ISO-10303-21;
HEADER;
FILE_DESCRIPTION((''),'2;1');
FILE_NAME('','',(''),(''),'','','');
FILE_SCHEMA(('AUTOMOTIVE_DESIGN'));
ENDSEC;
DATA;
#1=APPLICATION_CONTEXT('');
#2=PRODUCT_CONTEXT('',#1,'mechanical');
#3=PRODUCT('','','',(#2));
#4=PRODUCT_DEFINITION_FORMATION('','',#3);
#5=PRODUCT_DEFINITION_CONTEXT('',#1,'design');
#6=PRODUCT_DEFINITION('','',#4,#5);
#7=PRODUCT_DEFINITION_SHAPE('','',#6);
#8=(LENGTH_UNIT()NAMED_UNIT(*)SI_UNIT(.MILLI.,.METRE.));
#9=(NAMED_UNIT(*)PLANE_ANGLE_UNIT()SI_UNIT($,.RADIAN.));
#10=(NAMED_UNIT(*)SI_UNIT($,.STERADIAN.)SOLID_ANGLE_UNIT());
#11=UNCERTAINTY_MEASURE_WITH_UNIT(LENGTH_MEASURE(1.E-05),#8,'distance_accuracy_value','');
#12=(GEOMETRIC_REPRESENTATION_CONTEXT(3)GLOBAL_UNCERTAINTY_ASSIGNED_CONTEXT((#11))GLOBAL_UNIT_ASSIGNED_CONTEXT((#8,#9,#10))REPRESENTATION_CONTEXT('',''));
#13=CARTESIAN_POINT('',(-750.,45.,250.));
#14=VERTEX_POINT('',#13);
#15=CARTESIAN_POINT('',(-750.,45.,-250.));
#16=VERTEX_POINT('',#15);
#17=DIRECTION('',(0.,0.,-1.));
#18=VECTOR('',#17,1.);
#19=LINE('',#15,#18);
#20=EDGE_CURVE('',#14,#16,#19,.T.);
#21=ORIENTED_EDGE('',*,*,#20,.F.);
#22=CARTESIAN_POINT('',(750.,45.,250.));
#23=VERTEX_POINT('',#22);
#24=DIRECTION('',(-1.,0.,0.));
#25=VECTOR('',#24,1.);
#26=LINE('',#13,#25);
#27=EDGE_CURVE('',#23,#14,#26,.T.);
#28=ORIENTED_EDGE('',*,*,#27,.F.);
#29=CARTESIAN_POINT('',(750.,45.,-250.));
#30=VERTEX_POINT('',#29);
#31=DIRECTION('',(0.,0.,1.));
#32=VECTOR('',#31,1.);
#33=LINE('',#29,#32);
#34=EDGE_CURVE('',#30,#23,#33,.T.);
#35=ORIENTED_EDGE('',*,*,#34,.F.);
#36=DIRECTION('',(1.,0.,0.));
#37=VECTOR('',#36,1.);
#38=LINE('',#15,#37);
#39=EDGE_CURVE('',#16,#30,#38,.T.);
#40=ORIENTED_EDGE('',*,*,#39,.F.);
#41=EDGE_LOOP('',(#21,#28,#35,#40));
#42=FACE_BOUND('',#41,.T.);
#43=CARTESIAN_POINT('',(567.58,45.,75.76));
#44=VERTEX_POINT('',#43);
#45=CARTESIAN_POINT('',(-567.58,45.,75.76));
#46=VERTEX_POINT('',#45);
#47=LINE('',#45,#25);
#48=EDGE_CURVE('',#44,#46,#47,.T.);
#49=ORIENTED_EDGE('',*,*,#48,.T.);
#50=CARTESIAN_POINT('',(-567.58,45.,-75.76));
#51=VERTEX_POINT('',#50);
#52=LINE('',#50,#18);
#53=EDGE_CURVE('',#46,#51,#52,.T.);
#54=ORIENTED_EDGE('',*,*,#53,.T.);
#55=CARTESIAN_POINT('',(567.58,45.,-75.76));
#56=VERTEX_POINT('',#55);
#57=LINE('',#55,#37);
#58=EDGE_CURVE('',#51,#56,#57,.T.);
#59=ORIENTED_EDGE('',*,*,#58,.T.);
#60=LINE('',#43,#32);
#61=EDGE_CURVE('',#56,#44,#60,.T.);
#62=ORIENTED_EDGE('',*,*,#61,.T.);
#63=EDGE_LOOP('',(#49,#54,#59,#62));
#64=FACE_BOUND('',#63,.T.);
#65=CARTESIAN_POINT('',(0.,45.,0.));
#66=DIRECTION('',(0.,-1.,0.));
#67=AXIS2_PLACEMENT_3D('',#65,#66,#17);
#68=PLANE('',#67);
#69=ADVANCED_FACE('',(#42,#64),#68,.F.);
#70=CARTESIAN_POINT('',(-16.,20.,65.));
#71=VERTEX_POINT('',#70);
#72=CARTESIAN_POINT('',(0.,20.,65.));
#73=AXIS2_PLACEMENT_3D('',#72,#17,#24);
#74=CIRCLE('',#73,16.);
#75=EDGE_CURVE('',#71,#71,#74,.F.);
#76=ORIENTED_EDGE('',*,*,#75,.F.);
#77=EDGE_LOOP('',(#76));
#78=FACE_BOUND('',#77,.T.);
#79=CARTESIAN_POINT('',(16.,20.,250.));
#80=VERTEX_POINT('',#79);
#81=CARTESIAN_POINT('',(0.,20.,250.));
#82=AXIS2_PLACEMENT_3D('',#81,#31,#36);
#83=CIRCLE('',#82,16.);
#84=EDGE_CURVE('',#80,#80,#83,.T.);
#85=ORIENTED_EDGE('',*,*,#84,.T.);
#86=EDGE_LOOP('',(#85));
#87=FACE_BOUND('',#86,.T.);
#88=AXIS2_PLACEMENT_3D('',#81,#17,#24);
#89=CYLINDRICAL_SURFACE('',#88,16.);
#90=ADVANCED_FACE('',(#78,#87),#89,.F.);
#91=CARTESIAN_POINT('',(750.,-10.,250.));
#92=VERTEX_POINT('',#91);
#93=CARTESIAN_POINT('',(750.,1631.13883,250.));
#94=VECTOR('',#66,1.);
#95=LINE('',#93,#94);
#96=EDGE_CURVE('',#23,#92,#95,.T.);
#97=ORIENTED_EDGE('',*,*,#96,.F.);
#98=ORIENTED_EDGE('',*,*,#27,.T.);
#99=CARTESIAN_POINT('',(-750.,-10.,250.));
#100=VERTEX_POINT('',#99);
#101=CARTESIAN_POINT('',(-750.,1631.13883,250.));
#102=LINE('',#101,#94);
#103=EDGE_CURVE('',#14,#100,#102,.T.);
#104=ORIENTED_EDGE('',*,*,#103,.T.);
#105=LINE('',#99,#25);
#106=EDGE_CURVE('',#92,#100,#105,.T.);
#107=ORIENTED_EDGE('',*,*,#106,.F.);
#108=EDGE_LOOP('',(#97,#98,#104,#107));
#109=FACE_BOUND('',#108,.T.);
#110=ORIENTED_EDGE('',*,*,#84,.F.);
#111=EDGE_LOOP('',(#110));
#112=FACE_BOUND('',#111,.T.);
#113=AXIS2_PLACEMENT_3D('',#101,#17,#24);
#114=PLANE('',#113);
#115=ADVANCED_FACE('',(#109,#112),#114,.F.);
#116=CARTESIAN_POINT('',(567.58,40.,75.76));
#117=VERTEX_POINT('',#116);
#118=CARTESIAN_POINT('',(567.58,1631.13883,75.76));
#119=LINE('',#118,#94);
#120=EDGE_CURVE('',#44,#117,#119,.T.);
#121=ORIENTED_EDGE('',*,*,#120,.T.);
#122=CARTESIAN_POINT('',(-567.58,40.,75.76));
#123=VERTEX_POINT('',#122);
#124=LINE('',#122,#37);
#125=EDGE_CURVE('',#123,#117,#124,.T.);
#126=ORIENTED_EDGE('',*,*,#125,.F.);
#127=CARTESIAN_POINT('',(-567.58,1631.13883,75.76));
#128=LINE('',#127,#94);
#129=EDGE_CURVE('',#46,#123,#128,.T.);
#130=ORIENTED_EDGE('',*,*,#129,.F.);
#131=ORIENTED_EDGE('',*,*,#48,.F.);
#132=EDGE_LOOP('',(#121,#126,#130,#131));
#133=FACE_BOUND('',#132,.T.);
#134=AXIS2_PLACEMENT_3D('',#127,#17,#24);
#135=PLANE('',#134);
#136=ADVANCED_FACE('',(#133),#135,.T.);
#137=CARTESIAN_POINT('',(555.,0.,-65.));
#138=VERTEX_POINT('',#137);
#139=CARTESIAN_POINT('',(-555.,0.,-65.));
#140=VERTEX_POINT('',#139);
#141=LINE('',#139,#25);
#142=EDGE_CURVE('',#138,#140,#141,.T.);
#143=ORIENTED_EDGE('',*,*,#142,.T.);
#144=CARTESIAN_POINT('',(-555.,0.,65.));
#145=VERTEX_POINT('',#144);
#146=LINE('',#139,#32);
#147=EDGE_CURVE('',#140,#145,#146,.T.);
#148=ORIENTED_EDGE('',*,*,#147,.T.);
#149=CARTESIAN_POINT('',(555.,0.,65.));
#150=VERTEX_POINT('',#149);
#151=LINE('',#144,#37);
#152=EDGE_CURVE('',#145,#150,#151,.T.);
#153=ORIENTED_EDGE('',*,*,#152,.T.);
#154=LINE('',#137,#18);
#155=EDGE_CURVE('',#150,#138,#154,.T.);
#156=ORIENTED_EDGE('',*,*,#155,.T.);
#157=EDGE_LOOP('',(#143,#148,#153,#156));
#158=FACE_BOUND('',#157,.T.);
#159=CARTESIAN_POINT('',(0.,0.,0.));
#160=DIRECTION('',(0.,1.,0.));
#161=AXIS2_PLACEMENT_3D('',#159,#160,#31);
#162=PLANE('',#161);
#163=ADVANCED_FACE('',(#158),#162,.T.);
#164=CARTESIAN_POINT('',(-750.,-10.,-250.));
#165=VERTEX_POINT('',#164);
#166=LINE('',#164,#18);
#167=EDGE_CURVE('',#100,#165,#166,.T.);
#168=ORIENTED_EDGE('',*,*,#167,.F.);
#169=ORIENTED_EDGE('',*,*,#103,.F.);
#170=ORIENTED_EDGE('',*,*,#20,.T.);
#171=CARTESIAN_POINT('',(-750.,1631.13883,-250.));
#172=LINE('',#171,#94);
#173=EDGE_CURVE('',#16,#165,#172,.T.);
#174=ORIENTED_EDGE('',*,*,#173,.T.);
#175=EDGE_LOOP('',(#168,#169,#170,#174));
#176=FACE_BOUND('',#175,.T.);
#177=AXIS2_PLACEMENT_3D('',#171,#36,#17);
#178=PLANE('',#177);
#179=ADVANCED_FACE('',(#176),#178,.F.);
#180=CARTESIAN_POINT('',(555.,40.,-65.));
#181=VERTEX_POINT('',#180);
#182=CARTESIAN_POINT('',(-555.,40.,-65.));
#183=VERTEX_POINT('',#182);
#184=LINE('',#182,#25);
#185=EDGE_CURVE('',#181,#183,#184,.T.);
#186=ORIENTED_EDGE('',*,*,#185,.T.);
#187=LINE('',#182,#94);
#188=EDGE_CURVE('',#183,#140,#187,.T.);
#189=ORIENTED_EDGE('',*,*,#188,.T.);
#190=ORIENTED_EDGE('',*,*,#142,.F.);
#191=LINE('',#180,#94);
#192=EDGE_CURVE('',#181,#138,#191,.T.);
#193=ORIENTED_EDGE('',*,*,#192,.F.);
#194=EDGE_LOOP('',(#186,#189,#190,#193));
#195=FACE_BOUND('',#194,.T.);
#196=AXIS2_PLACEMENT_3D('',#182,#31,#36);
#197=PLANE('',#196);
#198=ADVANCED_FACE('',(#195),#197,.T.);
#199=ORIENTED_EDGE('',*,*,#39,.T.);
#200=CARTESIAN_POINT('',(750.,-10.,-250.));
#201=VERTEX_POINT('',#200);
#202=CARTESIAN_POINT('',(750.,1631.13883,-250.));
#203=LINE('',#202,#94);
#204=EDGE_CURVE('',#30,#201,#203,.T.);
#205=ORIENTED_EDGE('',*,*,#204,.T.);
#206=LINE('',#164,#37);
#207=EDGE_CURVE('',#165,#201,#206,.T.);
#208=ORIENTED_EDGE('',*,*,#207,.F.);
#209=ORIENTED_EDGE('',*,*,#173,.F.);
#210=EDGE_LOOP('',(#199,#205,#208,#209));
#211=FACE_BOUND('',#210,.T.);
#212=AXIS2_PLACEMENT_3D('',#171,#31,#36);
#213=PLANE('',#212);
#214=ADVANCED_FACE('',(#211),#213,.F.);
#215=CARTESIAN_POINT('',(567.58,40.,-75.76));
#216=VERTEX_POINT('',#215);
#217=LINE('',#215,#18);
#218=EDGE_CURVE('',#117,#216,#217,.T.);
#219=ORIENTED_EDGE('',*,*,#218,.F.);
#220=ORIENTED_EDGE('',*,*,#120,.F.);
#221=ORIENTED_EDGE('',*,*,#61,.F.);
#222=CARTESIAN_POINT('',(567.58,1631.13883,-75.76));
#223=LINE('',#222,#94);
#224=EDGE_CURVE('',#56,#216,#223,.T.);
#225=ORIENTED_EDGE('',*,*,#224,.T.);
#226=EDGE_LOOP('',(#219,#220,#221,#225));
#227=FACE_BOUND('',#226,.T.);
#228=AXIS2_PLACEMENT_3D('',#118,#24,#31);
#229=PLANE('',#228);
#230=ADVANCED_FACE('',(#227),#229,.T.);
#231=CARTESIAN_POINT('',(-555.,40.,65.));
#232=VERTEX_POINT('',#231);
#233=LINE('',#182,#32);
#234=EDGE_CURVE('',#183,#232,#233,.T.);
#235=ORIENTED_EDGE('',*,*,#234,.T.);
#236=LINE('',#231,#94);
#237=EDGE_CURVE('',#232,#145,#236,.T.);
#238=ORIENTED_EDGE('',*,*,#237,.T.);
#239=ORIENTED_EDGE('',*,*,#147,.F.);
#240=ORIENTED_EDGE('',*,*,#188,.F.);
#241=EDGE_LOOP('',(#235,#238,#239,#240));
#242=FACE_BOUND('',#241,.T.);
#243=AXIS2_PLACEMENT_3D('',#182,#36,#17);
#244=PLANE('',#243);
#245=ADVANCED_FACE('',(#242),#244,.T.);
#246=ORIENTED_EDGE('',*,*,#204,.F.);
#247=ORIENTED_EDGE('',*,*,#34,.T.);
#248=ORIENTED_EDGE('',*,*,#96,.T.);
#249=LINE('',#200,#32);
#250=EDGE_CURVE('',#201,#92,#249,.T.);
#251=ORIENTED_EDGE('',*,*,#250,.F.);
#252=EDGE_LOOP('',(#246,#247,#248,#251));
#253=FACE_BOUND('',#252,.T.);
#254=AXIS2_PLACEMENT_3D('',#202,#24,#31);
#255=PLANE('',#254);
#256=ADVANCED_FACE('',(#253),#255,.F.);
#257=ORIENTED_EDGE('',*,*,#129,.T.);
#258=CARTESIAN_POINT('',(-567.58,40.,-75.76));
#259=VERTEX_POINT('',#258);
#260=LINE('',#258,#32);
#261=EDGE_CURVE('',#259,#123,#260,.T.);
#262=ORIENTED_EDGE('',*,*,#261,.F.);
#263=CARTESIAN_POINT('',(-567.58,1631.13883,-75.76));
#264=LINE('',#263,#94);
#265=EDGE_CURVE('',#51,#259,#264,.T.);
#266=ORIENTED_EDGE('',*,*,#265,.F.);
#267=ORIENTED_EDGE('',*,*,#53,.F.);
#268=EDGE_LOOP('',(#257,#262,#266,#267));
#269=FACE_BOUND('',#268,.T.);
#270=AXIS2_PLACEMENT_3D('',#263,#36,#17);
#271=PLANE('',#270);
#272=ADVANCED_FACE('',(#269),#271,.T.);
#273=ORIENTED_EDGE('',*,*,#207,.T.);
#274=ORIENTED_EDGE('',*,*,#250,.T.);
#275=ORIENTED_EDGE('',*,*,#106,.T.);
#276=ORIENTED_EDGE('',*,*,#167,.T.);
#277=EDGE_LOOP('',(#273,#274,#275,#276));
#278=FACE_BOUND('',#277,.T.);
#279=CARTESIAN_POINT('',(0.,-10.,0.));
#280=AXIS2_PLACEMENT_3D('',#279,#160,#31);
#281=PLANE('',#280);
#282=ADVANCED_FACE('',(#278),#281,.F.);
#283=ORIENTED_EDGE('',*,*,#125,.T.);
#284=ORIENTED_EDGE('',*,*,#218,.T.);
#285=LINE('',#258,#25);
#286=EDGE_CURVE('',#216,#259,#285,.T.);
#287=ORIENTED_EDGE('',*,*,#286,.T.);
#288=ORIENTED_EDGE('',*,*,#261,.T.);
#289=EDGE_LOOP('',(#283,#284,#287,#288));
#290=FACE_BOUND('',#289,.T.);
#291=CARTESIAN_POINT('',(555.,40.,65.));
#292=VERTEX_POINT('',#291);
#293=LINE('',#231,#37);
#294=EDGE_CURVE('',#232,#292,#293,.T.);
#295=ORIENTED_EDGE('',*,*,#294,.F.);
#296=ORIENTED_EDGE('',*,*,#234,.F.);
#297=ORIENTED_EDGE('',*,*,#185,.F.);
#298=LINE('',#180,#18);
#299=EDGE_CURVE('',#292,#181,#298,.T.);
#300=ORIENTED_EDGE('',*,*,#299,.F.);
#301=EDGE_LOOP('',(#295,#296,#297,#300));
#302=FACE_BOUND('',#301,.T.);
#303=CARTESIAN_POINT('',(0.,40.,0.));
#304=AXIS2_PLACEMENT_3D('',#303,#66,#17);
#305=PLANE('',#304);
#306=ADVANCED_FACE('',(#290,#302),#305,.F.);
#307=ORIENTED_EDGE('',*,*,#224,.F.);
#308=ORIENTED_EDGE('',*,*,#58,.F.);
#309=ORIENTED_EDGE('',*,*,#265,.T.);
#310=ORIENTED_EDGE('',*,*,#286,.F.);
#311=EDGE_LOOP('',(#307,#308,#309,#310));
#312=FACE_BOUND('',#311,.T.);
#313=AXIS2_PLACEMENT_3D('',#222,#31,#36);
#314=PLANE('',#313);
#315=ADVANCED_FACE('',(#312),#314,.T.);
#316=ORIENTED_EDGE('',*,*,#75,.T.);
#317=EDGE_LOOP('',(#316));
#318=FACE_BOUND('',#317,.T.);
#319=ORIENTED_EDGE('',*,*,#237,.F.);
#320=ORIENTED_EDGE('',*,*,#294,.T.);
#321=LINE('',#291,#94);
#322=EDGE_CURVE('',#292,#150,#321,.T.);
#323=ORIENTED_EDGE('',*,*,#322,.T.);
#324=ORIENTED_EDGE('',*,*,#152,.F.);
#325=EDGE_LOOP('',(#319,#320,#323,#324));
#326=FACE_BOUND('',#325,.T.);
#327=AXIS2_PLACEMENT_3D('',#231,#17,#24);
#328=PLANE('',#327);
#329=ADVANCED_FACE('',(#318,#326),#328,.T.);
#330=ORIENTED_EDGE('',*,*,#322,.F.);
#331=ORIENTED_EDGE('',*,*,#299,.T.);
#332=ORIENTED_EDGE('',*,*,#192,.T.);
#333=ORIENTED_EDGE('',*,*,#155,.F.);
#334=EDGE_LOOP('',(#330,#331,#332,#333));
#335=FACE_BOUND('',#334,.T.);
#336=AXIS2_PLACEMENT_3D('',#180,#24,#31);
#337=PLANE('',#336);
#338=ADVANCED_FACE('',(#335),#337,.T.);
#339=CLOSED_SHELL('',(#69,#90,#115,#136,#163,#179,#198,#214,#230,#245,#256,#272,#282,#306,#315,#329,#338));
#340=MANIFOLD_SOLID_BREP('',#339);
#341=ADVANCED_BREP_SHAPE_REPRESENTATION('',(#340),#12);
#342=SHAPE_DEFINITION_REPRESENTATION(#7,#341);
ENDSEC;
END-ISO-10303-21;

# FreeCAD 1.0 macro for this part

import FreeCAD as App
import Part
import Sketcher
from FreeCAD import Vector
Q = App.Units.Quantity

doc = App.newDocument("Part")
body = doc.addObject("PartDesign::Body", "Body")

sketch1 = doc.addObject("Sketcher::SketchObject", "Sketch")
body.addObject(sketch1)
sketch1.AttachmentSupport = (doc.XZ_Plane, [""])
sketch1.MapMode = "FlatFace"
sketch1.addGeometry([
    Part.LineSegment(Vector(-568, -76, 0), Vector(-568, 76, 0)),
    Part.LineSegment(Vector(-568, 76, 0), Vector(568, 76, 0)),
    Part.LineSegment(Vector(568, 76, 0), Vector(568, -76, 0)),
    Part.LineSegment(Vector(568, -76, 0), Vector(-568, -76, 0)),
    Part.LineSegment(Vector(555, 65, 0), Vector(-555, 65, 0)),
    Part.LineSegment(Vector(-555, 65, 0), Vector(-555, -65, 0)),
    Part.LineSegment(Vector(-555, -65, 0), Vector(555, -65, 0)),
    Part.LineSegment(Vector(555, -65, 0), Vector(555, 65, 0)),
], False)
sketch1.addConstraint([
    Sketcher.Constraint("Coincident", 0, 2, 1, 1),
    Sketcher.Constraint("Coincident", 1, 2, 2, 1),
    Sketcher.Constraint("Coincident", 2, 2, 3, 1),
    Sketcher.Constraint("Coincident", 3, 2, 0, 1),
    Sketcher.Constraint("Coincident", 4, 2, 5, 1),
    Sketcher.Constraint("Coincident", 5, 2, 6, 1),
    Sketcher.Constraint("Coincident", 6, 2, 7, 1),
    Sketcher.Constraint("Coincident", 7, 2, 4, 1),
    Sketcher.Constraint("Vertical", 0),
    Sketcher.Constraint("Horizontal", 1),
    Sketcher.Constraint("Vertical", 2),
    Sketcher.Constraint("Horizontal", 3),
    Sketcher.Constraint("Horizontal", 4),
    Sketcher.Constraint("Vertical", 5),
    Sketcher.Constraint("Horizontal", 6),
    Sketcher.Constraint("Vertical", 7),
    Sketcher.Constraint("Symmetric", 0, 2, 2, 2, -1, 1),
    Sketcher.Constraint("Symmetric", 4, 2, 6, 2, -1, 1),
    Sketcher.Constraint("DistanceX", 4, 2, 4, 1, Q("1110 mm")),
    Sketcher.Constraint("DistanceY", 5, 2, 5, 1, Q("130 mm")),
    Sketcher.Constraint("DistanceX", 1, 1, 1, 2, Q("1135.16 mm")),
    Sketcher.Constraint("DistanceY", 0, 1, 0, 2, Q("151.52 mm")),
])
pad1 = doc.addObject("PartDesign::Pad", "Pad")
body.addObject(pad1)
pad1.Profile = sketch1
pad1.Length = 40
pad1.Reversed = True

sketch2 = doc.addObject("Sketcher::SketchObject", "Sketch001")
body.addObject(sketch2)
sketch2.AttachmentSupport = (doc.XZ_Plane, [""])
sketch2.MapMode = "FlatFace"
sketch2.addGeometry([
    Part.LineSegment(Vector(-568, -76, 0), Vector(-568, 76, 0)),
    Part.LineSegment(Vector(-568, 76, 0), Vector(568, 76, 0)),
    Part.LineSegment(Vector(568, 76, 0), Vector(568, -76, 0)),
    Part.LineSegment(Vector(568, -76, 0), Vector(-568, -76, 0)),
], False)
sketch2.addConstraint([
    Sketcher.Constraint("Coincident", 0, 2, 1, 1),
    Sketcher.Constraint("Coincident", 1, 2, 2, 1),
    Sketcher.Constraint("Coincident", 2, 2, 3, 1),
    Sketcher.Constraint("Coincident", 3, 2, 0, 1),
    Sketcher.Constraint("Vertical", 0),
    Sketcher.Constraint("Horizontal", 1),
    Sketcher.Constraint("Vertical", 2),
    Sketcher.Constraint("Horizontal", 3),
    Sketcher.Constraint("Symmetric", 0, 2, 2, 2, -1, 1),
    Sketcher.Constraint("DistanceX", 1, 1, 1, 2, Q("1135.16 mm")),
    Sketcher.Constraint("DistanceY", 0, 1, 0, 2, Q("151.52 mm")),
])
pad2 = doc.addObject("PartDesign::Pad", "Pad001")
body.addObject(pad2)
pad2.Profile = sketch2
pad2.Length = 10

sketch3 = doc.addObject("Sketcher::SketchObject", "Sketch002")
body.addObject(sketch3)
sketch3.AttachmentSupport = (doc.XZ_Plane, [""])
sketch3.MapMode = "FlatFace"
sketch3.addGeometry([
    Part.LineSegment(Vector(-750, -250, 0), Vector(-750, 250, 0)),
    Part.LineSegment(Vector(-750, 250, 0), Vector(750, 250, 0)),
    Part.LineSegment(Vector(750, 250, 0), Vector(750, -250, 0)),
    Part.LineSegment(Vector(750, -250, 0), Vector(-750, -250, 0)),
    Part.LineSegment(Vector(568, 76, 0), Vector(-568, 76, 0)),
    Part.LineSegment(Vector(-568, 76, 0), Vector(-568, -76, 0)),
    Part.LineSegment(Vector(-568, -76, 0), Vector(568, -76, 0)),
    Part.LineSegment(Vector(568, -76, 0), Vector(568, 76, 0)),
], False)
sketch3.addConstraint([
    Sketcher.Constraint("Coincident", 0, 2, 1, 1),
    Sketcher.Constraint("Coincident", 1, 2, 2, 1),
    Sketcher.Constraint("Coincident", 2, 2, 3, 1),
    Sketcher.Constraint("Coincident", 3, 2, 0, 1),
    Sketcher.Constraint("Coincident", 4, 2, 5, 1),
    Sketcher.Constraint("Coincident", 5, 2, 6, 1),
    Sketcher.Constraint("Coincident", 6, 2, 7, 1),
    Sketcher.Constraint("Coincident", 7, 2, 4, 1),
    Sketcher.Constraint("Vertical", 0),
    Sketcher.Constraint("Horizontal", 1),
    Sketcher.Constraint("Vertical", 2),
    Sketcher.Constraint("Horizontal", 3),
    Sketcher.Constraint("Horizontal", 4),
    Sketcher.Constraint("Vertical", 5),
    Sketcher.Constraint("Horizontal", 6),
    Sketcher.Constraint("Vertical", 7),
    Sketcher.Constraint("Symmetric", 0, 2, 2, 2, -1, 1),
    Sketcher.Constraint("Symmetric", 4, 2, 6, 2, -1, 1),
    Sketcher.Constraint("DistanceX", 1, 1, 1, 2, Q("1500 mm")),
    Sketcher.Constraint("DistanceY", 0, 1, 0, 2, Q("500 mm")),
    Sketcher.Constraint("DistanceX", 4, 2, 4, 1, Q("1135.16 mm")),
    Sketcher.Constraint("DistanceY", 5, 2, 5, 1, Q("151.52 mm")),
])
pad3 = doc.addObject("PartDesign::Pad", "Pad002")
body.addObject(pad3)
pad3.Profile = sketch3
pad3.Type = "TwoLengths"
pad3.Length = 45
pad3.Length2 = 10
pad3.Reversed = True

sketch4 = doc.addObject("Sketcher::SketchObject", "Sketch003")
body.addObject(sketch4)
sketch4.AttachmentSupport = (doc.XY_Plane, [""])
sketch4.MapMode = "FlatFace"
sketch4.addGeometry(Part.Circle(Vector(0, 20, 0), Vector(0, 0, 1), 16), False)
sketch4.addConstraint([
    Sketcher.Constraint("PointOnObject", 0, 3, -2),
    Sketcher.Constraint("Diameter", 0, Q("32 mm")),
    Sketcher.Constraint("DistanceY", -1, 1, 0, 3, Q("20 mm")),
])
pocket1 = doc.addObject("PartDesign::Pocket", "Pocket")
body.addObject(pocket1)
pocket1.Profile = sketch4
pocket1.Type = "ThroughAll"
pocket1.Reversed = True

doc.recompute()
